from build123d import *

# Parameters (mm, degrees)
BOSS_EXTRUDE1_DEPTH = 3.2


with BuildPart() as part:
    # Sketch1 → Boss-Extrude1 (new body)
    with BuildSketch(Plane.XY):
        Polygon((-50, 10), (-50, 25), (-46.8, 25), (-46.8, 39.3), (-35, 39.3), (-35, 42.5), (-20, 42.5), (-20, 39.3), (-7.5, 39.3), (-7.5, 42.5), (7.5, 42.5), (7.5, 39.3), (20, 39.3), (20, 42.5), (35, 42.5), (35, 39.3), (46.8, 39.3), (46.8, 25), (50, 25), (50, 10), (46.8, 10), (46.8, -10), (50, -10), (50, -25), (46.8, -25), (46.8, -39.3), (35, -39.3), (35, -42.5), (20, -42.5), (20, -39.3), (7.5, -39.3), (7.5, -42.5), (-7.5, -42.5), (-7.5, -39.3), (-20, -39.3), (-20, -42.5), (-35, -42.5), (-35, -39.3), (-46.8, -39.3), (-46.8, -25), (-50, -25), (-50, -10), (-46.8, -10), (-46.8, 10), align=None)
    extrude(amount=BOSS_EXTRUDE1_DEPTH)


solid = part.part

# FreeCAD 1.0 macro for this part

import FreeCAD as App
import Part
import Sketcher

V = App.Vector
Q = App.Units.Quantity

doc = App.newDocument("Part")
params = doc.addObject("Spreadsheet::Sheet", "Params")
for row, (alias, value) in enumerate([
    ("sketch1_width", "15 mm"),
    ("sketch1_height", "20 mm"),
    ("sketch1_width2", "3.2 mm"),
    ("sketch1_width3", "11.8 mm"),
    ("sketch1_width4", "12.5 mm"),
    ("pad1_length", "3.2 mm"),
], start=1):
    params.set(f"A{row}", alias)
    params.set(f"B{row}", "=" + value)
    params.setAlias(f"B{row}", alias)

body = doc.addObject("PartDesign::Body", "Body")

sketch1 = body.newObject("Sketcher::SketchObject", "Sketch")
sketch1.AttachmentSupport = (doc.getObject("XY_Plane"), [""])
sketch1.MapMode = "FlatFace"
sketch1.addGeometry([
    Part.LineSegment(V(-50, 25, 0), V(-50, 10, 0)),
    Part.LineSegment(V(-50, 10, 0), V(-46.8, 10, 0)),
    Part.LineSegment(V(-46.8, 10, 0), V(-46.8, -10, 0)),
    Part.LineSegment(V(-46.8, -10, 0), V(-50, -10, 0)),
    Part.LineSegment(V(-50, -10, 0), V(-50, -25, 0)),
    Part.LineSegment(V(-50, -25, 0), V(-46.8, -25, 0)),
    Part.LineSegment(V(-46.8, -25, 0), V(-46.8, -39.3, 0)),
    Part.LineSegment(V(-46.8, -39.3, 0), V(-35, -39.3, 0)),
    Part.LineSegment(V(-35, -39.3, 0), V(-35, -42.5, 0)),
    Part.LineSegment(V(-35, -42.5, 0), V(-20, -42.5, 0)),
    Part.LineSegment(V(-20, -42.5, 0), V(-20, -39.3, 0)),
    Part.LineSegment(V(-20, -39.3, 0), V(-7.5, -39.3, 0)),
    Part.LineSegment(V(-7.5, -39.3, 0), V(-7.5, -42.5, 0)),
    Part.LineSegment(V(-7.5, -42.5, 0), V(7.5, -42.5, 0)),
    Part.LineSegment(V(7.5, -42.5, 0), V(7.5, -39.3, 0)),
    Part.LineSegment(V(7.5, -39.3, 0), V(20, -39.3, 0)),
    Part.LineSegment(V(20, -39.3, 0), V(20, -42.5, 0)),
    Part.LineSegment(V(20, -42.5, 0), V(35, -42.5, 0)),
    Part.LineSegment(V(35, -42.5, 0), V(35, -39.3, 0)),
    Part.LineSegment(V(35, -39.3, 0), V(46.8, -39.3, 0)),
    Part.LineSegment(V(46.8, -39.3, 0), V(46.8, -25, 0)),
    Part.LineSegment(V(46.8, -25, 0), V(50, -25, 0)),
    Part.LineSegment(V(50, -25, 0), V(50, -10, 0)),
    Part.LineSegment(V(50, -10, 0), V(46.8, -10, 0)),
    Part.LineSegment(V(46.8, -10, 0), V(46.8, 10, 0)),
    Part.LineSegment(V(46.8, 10, 0), V(50, 10, 0)),
    Part.LineSegment(V(50, 10, 0), V(50, 25, 0)),
    Part.LineSegment(V(50, 25, 0), V(46.8, 25, 0)),
    Part.LineSegment(V(46.8, 25, 0), V(46.8, 39.3, 0)),
    Part.LineSegment(V(46.8, 39.3, 0), V(35, 39.3, 0)),
    Part.LineSegment(V(35, 39.3, 0), V(35, 42.5, 0)),
    Part.LineSegment(V(35, 42.5, 0), V(20, 42.5, 0)),
    Part.LineSegment(V(20, 42.5, 0), V(20, 39.3, 0)),
    Part.LineSegment(V(20, 39.3, 0), V(7.5, 39.3, 0)),
    Part.LineSegment(V(7.5, 39.3, 0), V(7.5, 42.5, 0)),
    Part.LineSegment(V(7.5, 42.5, 0), V(-7.5, 42.5, 0)),
    Part.LineSegment(V(-7.5, 42.5, 0), V(-7.5, 39.3, 0)),
    Part.LineSegment(V(-7.5, 39.3, 0), V(-20, 39.3, 0)),
    Part.LineSegment(V(-20, 39.3, 0), V(-20, 42.5, 0)),
    Part.LineSegment(V(-20, 42.5, 0), V(-35, 42.5, 0)),
    Part.LineSegment(V(-35, 42.5, 0), V(-35, 39.3, 0)),
    Part.LineSegment(V(-35, 39.3, 0), V(-46.8, 39.3, 0)),
    Part.LineSegment(V(-46.8, 39.3, 0), V(-46.8, 25, 0)),
    Part.LineSegment(V(-46.8, 25, 0), V(-50, 25, 0)),
], False)
sketch1.addConstraint([
    Sketcher.Constraint("Coincident", 0, 2, 1, 1),
    Sketcher.Constraint("Coincident", 1, 2, 2, 1),
    Sketcher.Constraint("Coincident", 2, 2, 3, 1),
    Sketcher.Constraint("Coincident", 3, 2, 4, 1),
    Sketcher.Constraint("Coincident", 4, 2, 5, 1),
    Sketcher.Constraint("Coincident", 5, 2, 6, 1),
    Sketcher.Constraint("Coincident", 6, 2, 7, 1),
    Sketcher.Constraint("Coincident", 7, 2, 8, 1),
    Sketcher.Constraint("Coincident", 8, 2, 9, 1),
    Sketcher.Constraint("Coincident", 9, 2, 10, 1),
    Sketcher.Constraint("Coincident", 10, 2, 11, 1),
    Sketcher.Constraint("Coincident", 11, 2, 12, 1),
    Sketcher.Constraint("Coincident", 12, 2, 13, 1),
    Sketcher.Constraint("Coincident", 13, 2, 14, 1),
    Sketcher.Constraint("Coincident", 14, 2, 15, 1),
    Sketcher.Constraint("Coincident", 15, 2, 16, 1),
    Sketcher.Constraint("Coincident", 16, 2, 17, 1),
    Sketcher.Constraint("Coincident", 17, 2, 18, 1),
    Sketcher.Constraint("Coincident", 18, 2, 19, 1),
    Sketcher.Constraint("Coincident", 19, 2, 20, 1),
    Sketcher.Constraint("Coincident", 20, 2, 21, 1),
    Sketcher.Constraint("Coincident", 21, 2, 22, 1),
    Sketcher.Constraint("Coincident", 22, 2, 23, 1),
    Sketcher.Constraint("Coincident", 23, 2, 24, 1),
    Sketcher.Constraint("Coincident", 24, 2, 25, 1),
    Sketcher.Constraint("Coincident", 25, 2, 26, 1),
    Sketcher.Constraint("Coincident", 26, 2, 27, 1),
    Sketcher.Constraint("Coincident", 27, 2, 28, 1),
    Sketcher.Constraint("Coincident", 28, 2, 29, 1),
    Sketcher.Constraint("Coincident", 29, 2, 30, 1),
    Sketcher.Constraint("Coincident", 30, 2, 31, 1),
    Sketcher.Constraint("Coincident", 31, 2, 32, 1),
    Sketcher.Constraint("Coincident", 32, 2, 33, 1),
    Sketcher.Constraint("Coincident", 33, 2, 34, 1),
    Sketcher.Constraint("Coincident", 34, 2, 35, 1),
    Sketcher.Constraint("Coincident", 35, 2, 36, 1),
    Sketcher.Constraint("Coincident", 36, 2, 37, 1),
    Sketcher.Constraint("Coincident", 37, 2, 38, 1),
    Sketcher.Constraint("Coincident", 38, 2, 39, 1),
    Sketcher.Constraint("Coincident", 39, 2, 40, 1),
    Sketcher.Constraint("Coincident", 40, 2, 41, 1),
    Sketcher.Constraint("Coincident", 41, 2, 42, 1),
    Sketcher.Constraint("Coincident", 42, 2, 43, 1),
    Sketcher.Constraint("Coincident", 43, 2, 0, 1),
    Sketcher.Constraint("Vertical", 0),
    Sketcher.Constraint("Horizontal", 1),
    Sketcher.Constraint("Vertical", 2),
    Sketcher.Constraint("Horizontal", 3),
    Sketcher.Constraint("Vertical", 4),
    Sketcher.Constraint("Horizontal", 5),
    Sketcher.Constraint("Vertical", 6),
    Sketcher.Constraint("Horizontal", 7),
    Sketcher.Constraint("Vertical", 8),
    Sketcher.Constraint("Horizontal", 9),
    Sketcher.Constraint("Vertical", 10),
    Sketcher.Constraint("Horizontal", 11),
    Sketcher.Constraint("Vertical", 12),
    Sketcher.Constraint("Horizontal", 13),
    Sketcher.Constraint("Vertical", 14),
    Sketcher.Constraint("Horizontal", 15),
    Sketcher.Constraint("Vertical", 16),
    Sketcher.Constraint("Horizontal", 17),
    Sketcher.Constraint("Vertical", 18),
    Sketcher.Constraint("Horizontal", 19),
    Sketcher.Constraint("Vertical", 20),
    Sketcher.Constraint("Horizontal", 21),
    Sketcher.Constraint("Vertical", 22),
    Sketcher.Constraint("Horizontal", 23),
    Sketcher.Constraint("Vertical", 24),
    Sketcher.Constraint("Horizontal", 25),
    Sketcher.Constraint("Vertical", 26),
    Sketcher.Constraint("Horizontal", 27),
    Sketcher.Constraint("Vertical", 28),
    Sketcher.Constraint("Horizontal", 29),
    Sketcher.Constraint("Vertical", 30),
    Sketcher.Constraint("Horizontal", 31),
    Sketcher.Constraint("Vertical", 32),
    Sketcher.Constraint("Horizontal", 33),
    Sketcher.Constraint("Vertical", 34),
    Sketcher.Constraint("Horizontal", 35),
    Sketcher.Constraint("Vertical", 36),
    Sketcher.Constraint("Horizontal", 37),
    Sketcher.Constraint("Vertical", 38),
    Sketcher.Constraint("Horizontal", 39),
    Sketcher.Constraint("Vertical", 40),
    Sketcher.Constraint("Horizontal", 41),
    Sketcher.Constraint("Vertical", 42),
    Sketcher.Constraint("Horizontal", 43),
    Sketcher.Constraint("Symmetric", 0, 2, 22, 2, -1, 1),
    Sketcher.Constraint("Symmetric", 2, 2, 24, 2, -1, 1),
    Sketcher.Constraint("Symmetric", 4, 2, 26, 2, -1, 1),
    Sketcher.Constraint("Symmetric", 6, 2, 28, 2, -1, 1),
    Sketcher.Constraint("Symmetric", 8, 2, 30, 2, -1, 1),
    Sketcher.Constraint("Symmetric", 10, 2, 32, 2, -1, 1),
    Sketcher.Constraint("Symmetric", 12, 2, 34, 2, -1, 1),
    Sketcher.Constraint("Symmetric", 14, 2, 36, 2, -1, 1),
    Sketcher.Constraint("Symmetric", 16, 2, 38, 2, -1, 1),
    Sketcher.Constraint("Symmetric", 18, 2, 40, 2, -1, 1),
    Sketcher.Constraint("Symmetric", 20, 2, 42, 2, -1, 1),
    Sketcher.Constraint("Symmetric", 11, 2, 14, 2, -2),
    Sketcher.Constraint("Symmetric", 9, 2, 16, 2, -2),
    Sketcher.Constraint("Symmetric", 7, 2, 18, 2, -2),
    Sketcher.Constraint("Symmetric", 5, 2, 20, 2, -2),
    Sketcher.Constraint("Symmetric", 3, 2, 22, 2, -2),
    Sketcher.Constraint("Horizontal", 7, 2, 10, 2),
    Sketcher.Constraint("Horizontal", 9, 2, 12, 2),
    Sketcher.Constraint("Vertical", 2, 2, 5, 2),
    Sketcher.Constraint("Equal", 9, 13),
    Sketcher.Constraint("Equal", 39, 0),
    Sketcher.Constraint("Equal", 43, 8),
    Sketcher.Constraint("DistanceX", 9, 1, 9, 2, Q("15 mm")),
    Sketcher.Constraint("DistanceY", 2, 2, 2, 1, Q("20 mm")),
    Sketcher.Constraint("DistanceX", 1, 1, 1, 2, Q("3.2 mm")),
    Sketcher.Constraint("DistanceX", 7, 1, 7, 2, Q("11.8 mm")),
    Sketcher.Constraint("DistanceX", 11, 1, 11, 2, Q("12.5 mm")),
    Sketcher.Constraint("DistanceY", 6, 2, 6, 1, Q("14.3 mm")),
])
sketch1.setExpression("Constraints[110]", "Params.sketch1_width")
sketch1.setExpression("Constraints[111]", "Params.sketch1_height")
sketch1.setExpression("Constraints[112]", "Params.sketch1_width2")
sketch1.setExpression("Constraints[113]", "Params.sketch1_width3")
sketch1.setExpression("Constraints[114]", "Params.sketch1_width4")
pad1 = body.newObject("PartDesign::Pad", "Pad")
pad1.Profile = sketch1
pad1.setExpression("Length", "Params.pad1_length")

doc.recompute()
